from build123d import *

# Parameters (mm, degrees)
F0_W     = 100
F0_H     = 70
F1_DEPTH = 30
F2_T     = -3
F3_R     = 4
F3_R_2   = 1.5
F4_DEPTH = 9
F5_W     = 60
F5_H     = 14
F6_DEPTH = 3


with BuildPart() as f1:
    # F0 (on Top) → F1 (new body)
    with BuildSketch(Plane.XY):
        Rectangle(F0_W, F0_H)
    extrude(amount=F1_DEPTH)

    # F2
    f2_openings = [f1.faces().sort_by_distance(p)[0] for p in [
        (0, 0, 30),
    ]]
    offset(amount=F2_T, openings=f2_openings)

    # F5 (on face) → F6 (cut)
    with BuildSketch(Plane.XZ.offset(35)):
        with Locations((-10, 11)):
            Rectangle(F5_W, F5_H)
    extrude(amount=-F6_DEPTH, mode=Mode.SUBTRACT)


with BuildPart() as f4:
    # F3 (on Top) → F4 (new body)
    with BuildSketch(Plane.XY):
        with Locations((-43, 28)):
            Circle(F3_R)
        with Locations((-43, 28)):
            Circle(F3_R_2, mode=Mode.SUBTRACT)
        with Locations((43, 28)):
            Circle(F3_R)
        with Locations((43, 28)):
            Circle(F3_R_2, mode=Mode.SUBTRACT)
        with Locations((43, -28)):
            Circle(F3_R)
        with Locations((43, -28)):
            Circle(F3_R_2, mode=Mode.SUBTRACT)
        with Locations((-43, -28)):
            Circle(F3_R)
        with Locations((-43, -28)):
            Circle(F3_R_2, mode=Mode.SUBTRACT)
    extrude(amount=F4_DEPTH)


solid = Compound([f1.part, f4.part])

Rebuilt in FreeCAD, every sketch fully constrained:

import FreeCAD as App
import Part
import Sketcher

V = App.Vector
Q = App.Units.Quantity


def faces_at(feature, points):
    """Names of the faces that lie closest to the given points."""
    faces = feature.Shape.Faces
    near = lambda p: min(range(len(faces)), key=lambda i: faces[i].distToShape(Part.Vertex(*p))[0])
    return sorted({f"Face{near(p) + 1}" for p in points})

doc = App.newDocument("Part")
body = doc.addObject("PartDesign::Body", "Body")

sketch1 = body.newObject("Sketcher::SketchObject", "Sketch")
sketch1.AttachmentSupport = (doc.getObject("XY_Plane"), [""])
sketch1.MapMode = "FlatFace"
sketch1.addGeometry([
    Part.LineSegment(V(-50, 35, 0), V(-50, -35, 0)),
    Part.LineSegment(V(-50, -35, 0), V(50, -35, 0)),
    Part.LineSegment(V(50, -35, 0), V(50, 35, 0)),
    Part.LineSegment(V(50, 35, 0), V(-50, 35, 0)),
], False)
sketch1.addConstraint([
    Sketcher.Constraint("Coincident", 0, 2, 1, 1),
    Sketcher.Constraint("Coincident", 1, 2, 2, 1),
    Sketcher.Constraint("Coincident", 2, 2, 3, 1),
    Sketcher.Constraint("Coincident", 3, 2, 0, 1),
    Sketcher.Constraint("Vertical", 0),
    Sketcher.Constraint("Horizontal", 1),
    Sketcher.Constraint("Vertical", 2),
    Sketcher.Constraint("Horizontal", 3),
    Sketcher.Constraint("Symmetric", 0, 2, 2, 2, -1, 1),
    Sketcher.Constraint("DistanceX", 1, 1, 1, 2, Q("100 mm")),
    Sketcher.Constraint("DistanceY", 0, 2, 0, 1, Q("70 mm")),
])
pad1 = body.newObject("PartDesign::Pad", "Pad")
pad1.Profile = sketch1
pad1.Length = 30
doc.recompute()

thickness = body.newObject("PartDesign::Thickness", "Thickness")
thickness.Base = (pad1, faces_at(pad1, [(0, 0, 30)]))
thickness.Value = 3
thickness.Reversed = True
thickness.Join = "Arc"

sketch2 = body.newObject("Sketcher::SketchObject", "Sketch001")
sketch2.AttachmentSupport = (doc.getObject("XZ_Plane"), [""])
sketch2.MapMode = "FlatFace"
sketch2.AttachmentOffset = App.Placement(V(0, 0, 35), App.Rotation())
sketch2.addGeometry([
    Part.LineSegment(V(-40, 18, 0), V(-40, 4, 0)),
    Part.LineSegment(V(-40, 4, 0), V(20, 4, 0)),
    Part.LineSegment(V(20, 4, 0), V(20, 18, 0)),
    Part.LineSegment(V(20, 18, 0), V(-40, 18, 0)),
], False)
sketch2.addConstraint([
    Sketcher.Constraint("Coincident", 0, 2, 1, 1),
    Sketcher.Constraint("Coincident", 1, 2, 2, 1),
    Sketcher.Constraint("Coincident", 2, 2, 3, 1),
    Sketcher.Constraint("Coincident", 3, 2, 0, 1),
    Sketcher.Constraint("Vertical", 0),
    Sketcher.Constraint("Horizontal", 1),
    Sketcher.Constraint("Vertical", 2),
    Sketcher.Constraint("Horizontal", 3),
    Sketcher.Constraint("DistanceX", 1, 1, 1, 2, Q("60 mm")),
    Sketcher.Constraint("DistanceY", 0, 2, 0, 1, Q("14 mm")),
    Sketcher.Constraint("DistanceX", 0, 2, -1, 1, Q("40 mm")),
    Sketcher.Constraint("DistanceY", -1, 1, 0, 2, Q("4 mm")),
])
pocket1 = body.newObject("PartDesign::Pocket", "Pocket")
pocket1.Profile = sketch2
pocket1.Length = 3
body2 = doc.addObject("PartDesign::Body", "Body001")
body2.AllowCompound = True

sketch3 = body2.newObject("Sketcher::SketchObject", "Sketch002")
sketch3.AttachmentSupport = (doc.getObject("XY_Plane001"), [""])
sketch3.MapMode = "FlatFace"
sketch3.addGeometry([
    Part.Circle(V(-43, 28, 0), V(0, 0, 1), 4),
    Part.Circle(V(-43, 28, 0), V(0, 0, 1), 1.5),
    Part.Circle(V(43, 28, 0), V(0, 0, 1), 4),
    Part.Circle(V(43, 28, 0), V(0, 0, 1), 1.5),
    Part.Circle(V(43, -28, 0), V(0, 0, 1), 4),
    Part.Circle(V(43, -28, 0), V(0, 0, 1), 1.5),
    Part.Circle(V(-43, -28, 0), V(0, 0, 1), 4),
    Part.Circle(V(-43, -28, 0), V(0, 0, 1), 1.5),
], False)
sketch3.addConstraint([
    Sketcher.Constraint("Coincident", 1, 3, 0, 3),
    Sketcher.Constraint("Coincident", 3, 3, 2, 3),
    Sketcher.Constraint("Coincident", 5, 3, 4, 3),
    Sketcher.Constraint("Coincident", 7, 3, 6, 3),
    Sketcher.Constraint("Equal", 0, 2),
    Sketcher.Constraint("Equal", 1, 3),
    Sketcher.Constraint("Equal", 2, 4),
    Sketcher.Constraint("Equal", 3, 5),
    Sketcher.Constraint("Equal", 4, 6),
    Sketcher.Constraint("Equal", 5, 7),
    Sketcher.Constraint("Symmetric", 0, 3, 4, 3, -1, 1),
    Sketcher.Constraint("Symmetric", 2, 3, 6, 3, -1, 1),
    Sketcher.Constraint("Symmetric", 0, 3, 2, 3, -2),
    Sketcher.Constraint("Diameter", 0, Q("8 mm")),
    Sketcher.Constraint("Diameter", 1, Q("3 mm")),
    Sketcher.Constraint("DistanceX", 0, 3, -1, 1, Q("43 mm")),
    Sketcher.Constraint("DistanceY", -1, 1, 0, 3, Q("28 mm")),
])
pad2 = body2.newObject("PartDesign::Pad", "Pad001")
pad2.Profile = sketch3
pad2.Length = 9

doc.recompute()
